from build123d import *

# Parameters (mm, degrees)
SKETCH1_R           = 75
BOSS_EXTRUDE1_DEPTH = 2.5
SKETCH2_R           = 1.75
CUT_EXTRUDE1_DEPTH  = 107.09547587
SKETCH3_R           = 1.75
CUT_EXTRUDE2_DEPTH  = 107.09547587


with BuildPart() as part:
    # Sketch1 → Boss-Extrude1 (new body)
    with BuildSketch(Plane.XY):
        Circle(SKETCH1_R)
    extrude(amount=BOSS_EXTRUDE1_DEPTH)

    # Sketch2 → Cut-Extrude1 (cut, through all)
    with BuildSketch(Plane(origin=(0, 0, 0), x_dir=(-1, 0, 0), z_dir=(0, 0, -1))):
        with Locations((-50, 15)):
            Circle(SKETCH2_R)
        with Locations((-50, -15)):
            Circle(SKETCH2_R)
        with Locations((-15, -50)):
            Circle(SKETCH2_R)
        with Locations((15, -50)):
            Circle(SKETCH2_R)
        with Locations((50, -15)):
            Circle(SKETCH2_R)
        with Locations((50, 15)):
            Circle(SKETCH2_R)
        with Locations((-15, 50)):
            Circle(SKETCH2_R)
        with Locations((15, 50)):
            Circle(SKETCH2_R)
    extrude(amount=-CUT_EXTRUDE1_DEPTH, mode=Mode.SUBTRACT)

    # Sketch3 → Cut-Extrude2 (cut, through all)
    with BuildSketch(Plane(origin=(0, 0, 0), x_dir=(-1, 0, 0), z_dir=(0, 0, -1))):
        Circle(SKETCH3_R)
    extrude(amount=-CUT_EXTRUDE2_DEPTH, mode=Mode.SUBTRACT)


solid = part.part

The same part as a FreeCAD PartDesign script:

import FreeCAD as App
import Part
import Sketcher
Q = App.Units.Quantity

doc = App.newDocument("Part")
body = doc.addObject("PartDesign::Body", "Body")

# Sketch on XY plane
sketch1 = body.newObject("Sketcher::SketchObject", "Sketch")
sketch1.AttachmentSupport = (doc.getObject("XY_Plane"), [""])
sketch1.MapMode = "FlatFace"
sketch1.addGeometry(Part.Circle(App.Vector(0, 0, 0), App.Vector(0, 0, 1), 75), False)
sketch1.addConstraint(Sketcher.Constraint("Coincident", 0, 3, -1, 1))
sketch1.addConstraint(Sketcher.Constraint("Diameter", 0, Q("150 mm")))
pad1 = body.newObject("PartDesign::Pad", "Pad")
pad1.Profile = sketch1
pad1.Length = 2.5

# Sketch on XY plane
sketch2 = body.newObject("Sketcher::SketchObject", "Sketch001")
sketch2.AttachmentSupport = (doc.getObject("XY_Plane"), [""])
sketch2.MapMode = "FlatFace"
sketch2.addGeometry(Part.Circle(App.Vector(50, 15, 0), App.Vector(0, 0, 1), 1.8), False)
sketch2.addGeometry(Part.Circle(App.Vector(50, -15, 0), App.Vector(0, 0, 1), 1.8), False)
sketch2.addGeometry(Part.Circle(App.Vector(15, -50, 0), App.Vector(0, 0, 1), 1.8), False)
sketch2.addGeometry(Part.Circle(App.Vector(-15, -50, 0), App.Vector(0, 0, 1), 1.8), False)
sketch2.addGeometry(Part.Circle(App.Vector(-50, -15, 0), App.Vector(0, 0, 1), 1.8), False)
sketch2.addGeometry(Part.Circle(App.Vector(-50, 15, 0), App.Vector(0, 0, 1), 1.8), False)
sketch2.addGeometry(Part.Circle(App.Vector(15, 50, 0), App.Vector(0, 0, 1), 1.8), False)
sketch2.addGeometry(Part.Circle(App.Vector(-15, 50, 0), App.Vector(0, 0, 1), 1.8), False)
sketch2.addConstraint(Sketcher.Constraint("Equal", 0, 1))
sketch2.addConstraint(Sketcher.Constraint("Equal", 1, 2))
sketch2.addConstraint(Sketcher.Constraint("Equal", 2, 3))
sketch2.addConstraint(Sketcher.Constraint("Equal", 3, 4))
sketch2.addConstraint(Sketcher.Constraint("Equal", 4, 5))
sketch2.addConstraint(Sketcher.Constraint("Equal", 5, 6))
sketch2.addConstraint(Sketcher.Constraint("Equal", 6, 7))
sketch2.addConstraint(Sketcher.Constraint("Symmetric", 0, 3, 4, 3, -1, 1))
sketch2.addConstraint(Sketcher.Constraint("Symmetric", 1, 3, 5, 3, -1, 1))
sketch2.addConstraint(Sketcher.Constraint("Symmetric", 3, 3, 6, 3, -1, 1))
sketch2.addConstraint(Sketcher.Constraint("Symmetric", 2, 3, 7, 3, -1, 1))
sketch2.addConstraint(Sketcher.Constraint("Symmetric", 2, 3, 3, 3, -2))
sketch2.addConstraint(Sketcher.Constraint("Symmetric", 1, 3, 4, 3, -2))
sketch2.addConstraint(Sketcher.Constraint("Diameter", 0, Q("3.5 mm")))
sketch2.addConstraint(Sketcher.Constraint("DistanceX", -1, 1, 0, 3, Q("50 mm")))
sketch2.addConstraint(Sketcher.Constraint("DistanceY", -1, 1, 0, 3, Q("15 mm")))
sketch2.addConstraint(Sketcher.Constraint("DistanceX", -1, 1, 2, 3, Q("15 mm")))
sketch2.addConstraint(Sketcher.Constraint("DistanceY", 2, 3, -1, 1, Q("50 mm")))
pocket1 = body.newObject("PartDesign::Pocket", "Pocket")
pocket1.Profile = sketch2
pocket1.Type = "ThroughAll"
pocket1.Reversed = True

# Sketch on XY plane
sketch3 = body.newObject("Sketcher::SketchObject", "Sketch002")
sketch3.AttachmentSupport = (doc.getObject("XY_Plane"), [""])
sketch3.MapMode = "FlatFace"
sketch3.addGeometry(Part.Circle(App.Vector(0, 0, 0), App.Vector(0, 0, 1), 1.8), False)
sketch3.addConstraint(Sketcher.Constraint("Coincident", 0, 3, -1, 1))
sketch3.addConstraint(Sketcher.Constraint("Diameter", 0, Q("3.5 mm")))
pocket2 = body.newObject("PartDesign::Pocket", "Pocket001")
pocket2.Profile = sketch3
pocket2.Type = "ThroughAll"
pocket2.Reversed = True

doc.recompute()
